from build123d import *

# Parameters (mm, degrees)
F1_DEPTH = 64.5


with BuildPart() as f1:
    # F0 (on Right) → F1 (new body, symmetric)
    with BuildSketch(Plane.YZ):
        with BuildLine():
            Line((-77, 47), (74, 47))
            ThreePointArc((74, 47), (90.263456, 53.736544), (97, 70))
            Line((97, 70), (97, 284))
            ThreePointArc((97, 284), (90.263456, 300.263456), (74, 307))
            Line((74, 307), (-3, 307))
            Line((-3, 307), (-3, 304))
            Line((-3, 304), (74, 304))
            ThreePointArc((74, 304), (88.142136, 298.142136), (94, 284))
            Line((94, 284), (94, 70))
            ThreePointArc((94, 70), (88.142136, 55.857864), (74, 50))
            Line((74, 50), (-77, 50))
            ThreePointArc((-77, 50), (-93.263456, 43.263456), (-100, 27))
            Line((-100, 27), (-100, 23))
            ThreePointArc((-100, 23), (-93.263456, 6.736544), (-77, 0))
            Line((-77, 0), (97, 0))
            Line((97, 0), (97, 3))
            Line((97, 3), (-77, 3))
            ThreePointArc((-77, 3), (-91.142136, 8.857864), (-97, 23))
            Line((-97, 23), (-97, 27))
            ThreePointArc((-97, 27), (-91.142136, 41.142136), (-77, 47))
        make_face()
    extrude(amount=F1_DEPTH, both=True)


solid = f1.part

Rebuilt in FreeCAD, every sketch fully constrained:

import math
import FreeCAD as App
import Part
import Sketcher

V = App.Vector
Q = App.Units.Quantity

doc = App.newDocument("Part")
body = doc.addObject("PartDesign::Body", "Body")

# Sketch on YZ plane
sketch1 = body.newObject("Sketcher::SketchObject", "Sketch")
sketch1.AttachmentSupport = (doc.getObject("YZ_Plane"), [""])
sketch1.MapMode = "FlatFace"
sketch1.addGeometry(Part.LineSegment(V(-77, 47, 0), V(74, 47, 0)), False)
sketch1.addGeometry(Part.ArcOfCircle(Part.Circle(V(74, 70, 0), V(0, 0, 1), 23), math.radians(-90), math.radians(0)), False)
sketch1.addGeometry(Part.LineSegment(V(97, 70, 0), V(97, 284, 0)), False)
sketch1.addGeometry(Part.ArcOfCircle(Part.Circle(V(74, 284, 0), V(0, 0, 1), 23), math.radians(0), math.radians(90)), False)
sketch1.addGeometry(Part.LineSegment(V(74, 307, 0), V(-3, 307, 0)), False)
sketch1.addGeometry(Part.LineSegment(V(-3, 307, 0), V(-3, 304, 0)), False)
sketch1.addGeometry(Part.LineSegment(V(-3, 304, 0), V(74, 304, 0)), False)
sketch1.addGeometry(Part.ArcOfCircle(Part.Circle(V(74.000001, 284.000001, 0), V(0, 0, 1), 19.999999), math.radians(-0.000004), math.radians(90.000004)), False)
sketch1.addGeometry(Part.LineSegment(V(94, 284, 0), V(94, 70, 0)), False)
sketch1.addGeometry(Part.ArcOfCircle(Part.Circle(V(74.000001, 69.999999, 0), V(0, 0, 1), 19.999999), math.radians(-90.000004), math.radians(0.000004)), False)
sketch1.addGeometry(Part.LineSegment(V(74, 50, 0), V(-77, 50, 0)), False)
sketch1.addGeometry(Part.ArcOfCircle(Part.Circle(V(-77, 27, 0), V(0, 0, 1), 23), math.radians(90), math.radians(180)), False)
sketch1.addGeometry(Part.LineSegment(V(-100, 27, 0), V(-100, 23, 0)), False)
sketch1.addGeometry(Part.ArcOfCircle(Part.Circle(V(-77, 23, 0), V(0, 0, 1), 23), math.radians(180), math.radians(270)), False)
sketch1.addGeometry(Part.LineSegment(V(-77, 0, 0), V(97, 0, 0)), False)
sketch1.addGeometry(Part.LineSegment(V(97, 0, 0), V(97, 3, 0)), False)
sketch1.addGeometry(Part.LineSegment(V(97, 3, 0), V(-77, 3, 0)), False)
sketch1.addGeometry(Part.ArcOfCircle(Part.Circle(V(-77.000001, 22.999999, 0), V(0, 0, 1), 19.999999), math.radians(179.999996), math.radians(270.000004)), False)
sketch1.addGeometry(Part.LineSegment(V(-97, 23, 0), V(-97, 27, 0)), False)
sketch1.addGeometry(Part.ArcOfCircle(Part.Circle(V(-77.000001, 27.000001, 0), V(0, 0, 1), 19.999999), math.radians(89.999996), math.radians(180.000004)), False)
sketch1.addConstraint(Sketcher.Constraint("Tangent", 0, 2, 1, 1))
sketch1.addConstraint(Sketcher.Constraint("Tangent", 1, 2, 2, 1))
sketch1.addConstraint(Sketcher.Constraint("Tangent", 2, 2, 3, 1))
sketch1.addConstraint(Sketcher.Constraint("Tangent", 3, 2, 4, 1))
sketch1.addConstraint(Sketcher.Constraint("Coincident", 4, 2, 5, 1))
sketch1.addConstraint(Sketcher.Constraint("Coincident", 5, 2, 6, 1))
sketch1.addConstraint(Sketcher.Constraint("Tangent", 6, 2, 7, 2))
sketch1.addConstraint(Sketcher.Constraint("Tangent", 7, 1, 8, 1))
sketch1.addConstraint(Sketcher.Constraint("Tangent", 8, 2, 9, 2))
sketch1.addConstraint(Sketcher.Constraint("Tangent", 9, 1, 10, 1))
sketch1.addConstraint(Sketcher.Constraint("Tangent", 10, 2, 11, 1))
sketch1.addConstraint(Sketcher.Constraint("Tangent", 11, 2, 12, 1))
sketch1.addConstraint(Sketcher.Constraint("Tangent", 12, 2, 13, 1))
sketch1.addConstraint(Sketcher.Constraint("Tangent", 13, 2, 14, 1))
sketch1.addConstraint(Sketcher.Constraint("Coincident", 14, 2, 15, 1))
sketch1.addConstraint(Sketcher.Constraint("Coincident", 15, 2, 16, 1))
sketch1.addConstraint(Sketcher.Constraint("Tangent", 16, 2, 17, 2))
sketch1.addConstraint(Sketcher.Constraint("Tangent", 17, 1, 18, 1))
sketch1.addConstraint(Sketcher.Constraint("Tangent", 18, 2, 19, 2))
sketch1.addConstraint(Sketcher.Constraint("Tangent", 19, 1, 0, 1))
sketch1.addConstraint(Sketcher.Constraint("Horizontal", 0))
sketch1.addConstraint(Sketcher.Constraint("Vertical", 2))
sketch1.addConstraint(Sketcher.Constraint("Horizontal", 4))
sketch1.addConstraint(Sketcher.Constraint("Vertical", 5))
sketch1.addConstraint(Sketcher.Constraint("Horizontal", 6))
sketch1.addConstraint(Sketcher.Constraint("Vertical", 8))
sketch1.addConstraint(Sketcher.Constraint("Horizontal", 10))
sketch1.addConstraint(Sketcher.Constraint("Vertical", 12))
sketch1.addConstraint(Sketcher.Constraint("Horizontal", 14))
sketch1.addConstraint(Sketcher.Constraint("Vertical", 15))
sketch1.addConstraint(Sketcher.Constraint("Horizontal", 16))
sketch1.addConstraint(Sketcher.Constraint("Vertical", 18))
sketch1.addConstraint(Sketcher.Constraint("Coincident", 7, 3, 3, 3))
sketch1.addConstraint(Sketcher.Constraint("Coincident", 9, 3, 1, 3))
sketch1.addConstraint(Sketcher.Constraint("Coincident", 17, 3, 13, 3))
sketch1.addConstraint(Sketcher.Constraint("Coincident", 19, 3, 11, 3))
sketch1.addConstraint(Sketcher.Constraint("Equal", 1, 3))
sketch1.addConstraint(Sketcher.Constraint("Equal", 3, 11))
sketch1.addConstraint(Sketcher.Constraint("Equal", 11, 13))
sketch1.addConstraint(Sketcher.Constraint("PointOnObject", 13, 2, -1))
sketch1.addConstraint(Sketcher.Constraint("Vertical", 2, 2, 14, 2))
sketch1.addConstraint(Sketcher.Constraint("Radius", 1, Q("23 mm")))
sketch1.addConstraint(Sketcher.Constraint("Radius", 7, Q("19.999999 mm")))
sketch1.addConstraint(Sketcher.Constraint("DistanceX", 0, 1, 0, 2, Q("151 mm")))
sketch1.addConstraint(Sketcher.Constraint("DistanceX", 4, 2, 4, 1, Q("77 mm")))
sketch1.addConstraint(Sketcher.Constraint("DistanceY", 2, 1, 2, 2, Q("214 mm")))
sketch1.addConstraint(Sketcher.Constraint("DistanceY", 12, 2, 12, 1, Q("4 mm")))
sketch1.addConstraint(Sketcher.Constraint("DistanceX", -1, 1, 1, 3, Q("74 mm")))
pad1 = body.newObject("PartDesign::Pad", "Pad")
pad1.Profile = sketch1
pad1.Length = 129
pad1.Midplane = True

doc.recompute()
